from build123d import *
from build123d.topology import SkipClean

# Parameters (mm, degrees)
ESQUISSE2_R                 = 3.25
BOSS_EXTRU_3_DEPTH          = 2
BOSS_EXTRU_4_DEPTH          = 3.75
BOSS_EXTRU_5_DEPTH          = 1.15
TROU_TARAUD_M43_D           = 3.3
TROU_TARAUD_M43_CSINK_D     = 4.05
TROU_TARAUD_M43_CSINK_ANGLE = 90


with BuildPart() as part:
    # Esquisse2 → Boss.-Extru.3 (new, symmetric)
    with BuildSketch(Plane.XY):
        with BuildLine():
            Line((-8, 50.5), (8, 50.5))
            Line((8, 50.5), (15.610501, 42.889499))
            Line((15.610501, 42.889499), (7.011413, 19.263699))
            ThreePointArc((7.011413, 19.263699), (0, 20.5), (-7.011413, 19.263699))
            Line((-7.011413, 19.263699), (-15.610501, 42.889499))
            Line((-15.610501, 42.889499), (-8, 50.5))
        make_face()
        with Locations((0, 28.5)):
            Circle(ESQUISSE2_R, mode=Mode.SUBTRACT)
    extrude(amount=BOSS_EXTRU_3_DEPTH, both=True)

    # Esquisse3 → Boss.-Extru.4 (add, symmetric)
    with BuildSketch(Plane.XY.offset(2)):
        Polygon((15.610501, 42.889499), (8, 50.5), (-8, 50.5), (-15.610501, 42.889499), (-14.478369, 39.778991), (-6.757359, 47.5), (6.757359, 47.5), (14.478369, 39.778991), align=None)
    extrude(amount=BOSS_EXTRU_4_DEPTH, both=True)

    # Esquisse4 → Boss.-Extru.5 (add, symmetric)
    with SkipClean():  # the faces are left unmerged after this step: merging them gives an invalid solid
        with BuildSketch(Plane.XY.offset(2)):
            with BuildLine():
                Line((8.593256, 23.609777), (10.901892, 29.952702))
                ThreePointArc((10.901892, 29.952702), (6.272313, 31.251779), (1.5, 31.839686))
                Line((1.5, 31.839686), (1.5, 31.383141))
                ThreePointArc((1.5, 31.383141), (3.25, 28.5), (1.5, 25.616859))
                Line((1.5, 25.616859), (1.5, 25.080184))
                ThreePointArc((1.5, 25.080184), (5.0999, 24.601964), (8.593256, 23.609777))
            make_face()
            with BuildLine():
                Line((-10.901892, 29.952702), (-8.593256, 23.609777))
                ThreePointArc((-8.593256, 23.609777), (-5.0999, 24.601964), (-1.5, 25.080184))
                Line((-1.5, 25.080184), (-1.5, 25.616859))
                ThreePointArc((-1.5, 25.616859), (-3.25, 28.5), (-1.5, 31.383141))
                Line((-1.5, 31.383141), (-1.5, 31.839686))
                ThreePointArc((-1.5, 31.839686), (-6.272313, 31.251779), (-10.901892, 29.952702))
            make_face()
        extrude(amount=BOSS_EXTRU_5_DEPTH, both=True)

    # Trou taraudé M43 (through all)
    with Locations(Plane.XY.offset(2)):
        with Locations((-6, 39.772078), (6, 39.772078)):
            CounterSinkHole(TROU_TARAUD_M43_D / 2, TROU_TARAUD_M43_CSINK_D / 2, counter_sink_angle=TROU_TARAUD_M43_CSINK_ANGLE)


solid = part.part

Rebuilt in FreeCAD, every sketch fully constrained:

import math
import FreeCAD as App
import Part
import Sketcher
from FreeCAD import Vector
Q = App.Units.Quantity


def add_polygon(sketch, points):
    """Adds a closed chain of lines whose ends are joined by coincident constraints."""
    first, n = sketch.GeometryCount, len(points)
    for a, b in zip(points, points[1:] + points[:1]):
        sketch.addGeometry(Part.LineSegment(App.Vector(*a, 0), App.Vector(*b, 0)), False)
    for i in range(n):
        sketch.addConstraint(Sketcher.Constraint("Coincident", first + i, 2, first + (i + 1) % n, 1))

doc = App.newDocument("Part")
body = doc.addObject("PartDesign::Body", "Body")

# Sketch on XY plane
sketch1 = body.newObject("Sketcher::SketchObject", "Sketch")
sketch1.AttachmentSupport = (doc.getObject("XY_Plane"), [""])
sketch1.MapMode = "FlatFace"
sketch1.addGeometry([
    Part.LineSegment(Vector(8, 50.5, 0), Vector(-8, 50.5, 0)),  # 0
    Part.LineSegment(Vector(-8, 50.5, 0), Vector(-15.610501, 42.889499, 0)),  # 1
    Part.LineSegment(Vector(-15.610501, 42.889499, 0), Vector(-7.011413, 19.263699, 0)),  # 2
    Part.ArcOfCircle(Part.Circle(Vector(0, -0.000005, 0), Vector(0, 0, 1), 20.500005), math.radians(70.000005), math.radians(109.999995)),  # 3
    Part.LineSegment(Vector(7.011413, 19.263699, 0), Vector(15.610501, 42.889499, 0)),  # 4
    Part.LineSegment(Vector(15.610501, 42.889499, 0), Vector(8, 50.5, 0)),  # 5
    Part.Circle(Vector(0, 28.5, 0), Vector(0, 0, 1), 3.25),  # 6
], False)
sketch1.addConstraint([
    Sketcher.Constraint("Coincident", 0, 2, 1, 1),
    Sketcher.Constraint("Coincident", 1, 2, 2, 1),
    Sketcher.Constraint("Coincident", 2, 2, 3, 2),
    Sketcher.Constraint("Coincident", 3, 1, 4, 1),
    Sketcher.Constraint("Coincident", 4, 2, 5, 1),
    Sketcher.Constraint("Coincident", 5, 2, 0, 1),
    Sketcher.Constraint("Horizontal", 0),
    Sketcher.Constraint("Coincident", 3, 3, -1, 1),
    Sketcher.Constraint("Symmetric", 1, 2, 4, 2, -2),
    Sketcher.Constraint("PointOnObject", 6, 3, -2),
    Sketcher.Constraint("Perpendicular", 1, 5),
    Sketcher.Constraint("Horizontal", 2, 2, 3, 1),
    Sketcher.Constraint("Equal", 1, 5),
    Sketcher.Constraint("Diameter", 6, Q("6.5 mm")),
    Sketcher.Constraint("DistanceX", 0, 2, 0, 1, Q("16 mm")),
    Sketcher.Constraint("Angle", 2, Q("-70 deg")),
    Sketcher.Constraint("DistanceY", 6, 3, 0, 2, Q("22 mm")),
    Sketcher.Constraint("DistanceY", -1, 1, 6, 3, Q("28.5 mm")),
    Sketcher.Constraint("Radius", 3, Q("20.500005 mm")),
    Sketcher.Constraint("DistanceX", 1, 2, 4, 2, Q("31.221002 mm")),
])
pad1 = body.newObject("PartDesign::Pad", "Pad")
pad1.Profile = sketch1
pad1.Length = 4
pad1.Midplane = True

# Sketch on XY plane
sketch2 = body.newObject("Sketcher::SketchObject", "Sketch001")
sketch2.AttachmentSupport = (doc.getObject("XY_Plane"), [""])
sketch2.MapMode = "FlatFace"
sketch2.AttachmentOffset = App.Placement(Vector(0, 0, 2), App.Rotation())
add_polygon(sketch2, [(15.610501, 42.889499), (8, 50.5), (-8, 50.5), (-15.610501, 42.889499), (-14.478369, 39.778991), (-6.757359, 47.5), (6.757359, 47.5), (14.478369, 39.778991)])  # lines 0-7
sketch2.addConstraint([
    Sketcher.Constraint("Horizontal", 1),
    Sketcher.Constraint("Horizontal", 5),
    Sketcher.Constraint("Symmetric", 3, 2, 6, 2, -2),
    Sketcher.Constraint("Symmetric", 2, 2, 7, 2, -2),
    Sketcher.Constraint("Perpendicular", 0, 2),
    Sketcher.Constraint("Parallel", 2, 4),
    Sketcher.Constraint("Perpendicular", 4, 6),
    Sketcher.Constraint("Equal", 0, 2),
    Sketcher.Constraint("DistanceX", 1, 2, 1, 1, Q("16 mm")),
    Sketcher.Constraint("Angle", 3, Q("-70.000005 deg")),
    Sketcher.Constraint("DistanceY", 4, 2, 1, 2, Q("3 mm")),
    Sketcher.Constraint("DistanceY", -1, 1, 0, 2, Q("50.5 mm")),
    Sketcher.Constraint("DistanceX", 2, 2, -1, 1, Q("15.610501 mm")),
    Sketcher.Constraint("DistanceX", 5, 1, 5, 2, Q("13.514718 mm")),
])
pad2 = body.newObject("PartDesign::Pad", "Pad001")
pad2.Profile = sketch2
pad2.Length = 7.5
pad2.Midplane = True

# Sketch on XY plane
sketch3 = body.newObject("Sketcher::SketchObject", "Sketch002")
sketch3.AttachmentSupport = (doc.getObject("XY_Plane"), [""])
sketch3.MapMode = "FlatFace"
sketch3.AttachmentOffset = App.Placement(Vector(0, 0, 2), App.Rotation())
sketch3.addGeometry([
    Part.LineSegment(Vector(8.593256, 23.609777, 0), Vector(10.901892, 29.952702, 0)),  # 0
    Part.ArcOfCircle(Part.Circle(Vector(-0.000001, -0.000006, 0), Vector(0, 0, 1), 31.875006), math.radians(70.000002), math.radians(87.30273)),  # 1
    Part.LineSegment(Vector(1.5, 31.839686, 0), Vector(1.5, 31.383141, 0)),  # 2
    Part.ArcOfCircle(Part.Circle(Vector(-0.000001, 28.5, 0), Vector(0, 0, 1), 3.250001), math.radians(-62.513568), math.radians(62.513568)),  # 3
    Part.LineSegment(Vector(1.5, 25.616859, 0), Vector(1.5, 25.080184, 0)),  # 4
    Part.ArcOfCircle(Part.Circle(Vector(-0.000005, -0.000021, 0), Vector(0, 0, 1), 25.125021), math.radians(70.000006), math.radians(86.577312)),  # 5
    Part.LineSegment(Vector(-10.901892, 29.952702, 0), Vector(-8.593256, 23.609777, 0)),  # 6
    Part.ArcOfCircle(Part.Circle(Vector(0.000005, -0.000021, 0), Vector(0, 0, 1), 25.125021), math.radians(93.422688), math.radians(109.999994)),  # 7
    Part.LineSegment(Vector(-1.5, 25.080184, 0), Vector(-1.5, 25.616859, 0)),  # 8
    Part.ArcOfCircle(Part.Circle(Vector(0.000001, 28.5, 0), Vector(0, 0, 1), 3.250001), math.radians(117.486432), math.radians(242.513568)),  # 9
    Part.LineSegment(Vector(-1.5, 31.383141, 0), Vector(-1.5, 31.839686, 0)),  # 10
    Part.ArcOfCircle(Part.Circle(Vector(0.000001, -0.000006, 0), Vector(0, 0, 1), 31.875006), math.radians(92.69727), math.radians(109.999998)),  # 11
], False)
sketch3.addConstraint([
    Sketcher.Constraint("Coincident", 0, 2, 1, 1),
    Sketcher.Constraint("Coincident", 1, 2, 2, 1),
    Sketcher.Constraint("Coincident", 2, 2, 3, 2),
    Sketcher.Constraint("Coincident", 3, 1, 4, 1),
    Sketcher.Constraint("Coincident", 4, 2, 5, 2),
    Sketcher.Constraint("Coincident", 5, 1, 0, 1),
    Sketcher.Constraint("Coincident", 6, 2, 7, 2),
    Sketcher.Constraint("Coincident", 7, 1, 8, 1),
    Sketcher.Constraint("Coincident", 8, 2, 9, 2),
    Sketcher.Constraint("Coincident", 9, 1, 10, 1),
    Sketcher.Constraint("Coincident", 10, 2, 11, 1),
    Sketcher.Constraint("Coincident", 11, 2, 6, 1),
    Sketcher.Constraint("Vertical", 2),
    Sketcher.Constraint("Vertical", 4),
    Sketcher.Constraint("Vertical", 8),
    Sketcher.Constraint("Vertical", 10),
    Sketcher.Constraint("Coincident", 1, 3, -1, 1),
    Sketcher.Constraint("Coincident", 11, 3, -1, 1),
    Sketcher.Constraint("Coincident", 9, 3, 3, 3),
    Sketcher.Constraint("Equal", 5, 7),
    Sketcher.Constraint("Equal", 3, 9),
    Sketcher.Constraint("Equal", 1, 11),
    Sketcher.Constraint("Symmetric", 5, 3, 7, 3, -2),
    Sketcher.Constraint("Symmetric", 3, 1, 8, 2, -2),
    Sketcher.Constraint("Horizontal", 5, 1, 6, 2),
    Sketcher.Constraint("Horizontal", 2, 2, 9, 1),
    Sketcher.Constraint("Horizontal", 0, 2, 11, 2),
    Sketcher.Constraint("Vertical", 2, 2, 3, 1),
    Sketcher.Constraint("Angle", 0, Q("69.999999 deg")),
    Sketcher.Constraint("Radius", 3, Q("3.250001 mm")),
    Sketcher.Constraint("DistanceX", 7, 1, 4, 2, Q("3 mm")),
    Sketcher.Constraint("DistanceY", -1, 1, 3, 3, Q("28.5 mm")),
    Sketcher.Constraint("Distance", 0, Q("6.75 mm")),
    Sketcher.Constraint("Radius", 5, Q("25.125021 mm")),
    Sketcher.Constraint("Radius", 1, Q("31.875006 mm")),
    Sketcher.Constraint("DistanceY", -1, 1, 0, 2, Q("29.952702 mm")),
    Sketcher.Constraint("DistanceY", 4, 2, 1, 2, Q("6.759502 mm")),
])
pad3 = body.newObject("PartDesign::Pad", "Pad002")
pad3.Profile = sketch3
pad3.Length = 2.3
pad3.Midplane = True

# Sketch on XY plane
sketch4 = body.newObject("Sketcher::SketchObject", "Sketch003")
sketch4.AttachmentSupport = (doc.getObject("XY_Plane"), [""])
sketch4.MapMode = "FlatFace"
sketch4.AttachmentOffset = App.Placement(Vector(0, 0, 2), App.Rotation())
sketch4.addGeometry([
    Part.Circle(Vector(-6, 39.772078, 0), Vector(0, 0, 1), 1.65),
    Part.Circle(Vector(6, 39.772078, 0), Vector(0, 0, 1), 1.65),
], False)
sketch4.addConstraint([
    Sketcher.Constraint("Equal", 0, 1),
    Sketcher.Constraint("Symmetric", 0, 3, 1, 3, -2),
    Sketcher.Constraint("Diameter", 0, Q("3.3 mm")),
    Sketcher.Constraint("DistanceX", 0, 3, -1, 1, Q("6 mm")),
    Sketcher.Constraint("DistanceY", -1, 1, 0, 3, Q("39.772078 mm")),
])
doc.recompute()
hole = body.newObject("PartDesign::Hole", "Hole")
hole.Profile = sketch4
hole.ThreadType = "None"
hole.Diameter = 3.3
hole.DepthType = "ThroughAll"
hole.HoleCutType = "Countersink"
hole.HoleCutDiameter = 4.05
hole.HoleCutCountersinkAngle = 90

doc.recompute()
